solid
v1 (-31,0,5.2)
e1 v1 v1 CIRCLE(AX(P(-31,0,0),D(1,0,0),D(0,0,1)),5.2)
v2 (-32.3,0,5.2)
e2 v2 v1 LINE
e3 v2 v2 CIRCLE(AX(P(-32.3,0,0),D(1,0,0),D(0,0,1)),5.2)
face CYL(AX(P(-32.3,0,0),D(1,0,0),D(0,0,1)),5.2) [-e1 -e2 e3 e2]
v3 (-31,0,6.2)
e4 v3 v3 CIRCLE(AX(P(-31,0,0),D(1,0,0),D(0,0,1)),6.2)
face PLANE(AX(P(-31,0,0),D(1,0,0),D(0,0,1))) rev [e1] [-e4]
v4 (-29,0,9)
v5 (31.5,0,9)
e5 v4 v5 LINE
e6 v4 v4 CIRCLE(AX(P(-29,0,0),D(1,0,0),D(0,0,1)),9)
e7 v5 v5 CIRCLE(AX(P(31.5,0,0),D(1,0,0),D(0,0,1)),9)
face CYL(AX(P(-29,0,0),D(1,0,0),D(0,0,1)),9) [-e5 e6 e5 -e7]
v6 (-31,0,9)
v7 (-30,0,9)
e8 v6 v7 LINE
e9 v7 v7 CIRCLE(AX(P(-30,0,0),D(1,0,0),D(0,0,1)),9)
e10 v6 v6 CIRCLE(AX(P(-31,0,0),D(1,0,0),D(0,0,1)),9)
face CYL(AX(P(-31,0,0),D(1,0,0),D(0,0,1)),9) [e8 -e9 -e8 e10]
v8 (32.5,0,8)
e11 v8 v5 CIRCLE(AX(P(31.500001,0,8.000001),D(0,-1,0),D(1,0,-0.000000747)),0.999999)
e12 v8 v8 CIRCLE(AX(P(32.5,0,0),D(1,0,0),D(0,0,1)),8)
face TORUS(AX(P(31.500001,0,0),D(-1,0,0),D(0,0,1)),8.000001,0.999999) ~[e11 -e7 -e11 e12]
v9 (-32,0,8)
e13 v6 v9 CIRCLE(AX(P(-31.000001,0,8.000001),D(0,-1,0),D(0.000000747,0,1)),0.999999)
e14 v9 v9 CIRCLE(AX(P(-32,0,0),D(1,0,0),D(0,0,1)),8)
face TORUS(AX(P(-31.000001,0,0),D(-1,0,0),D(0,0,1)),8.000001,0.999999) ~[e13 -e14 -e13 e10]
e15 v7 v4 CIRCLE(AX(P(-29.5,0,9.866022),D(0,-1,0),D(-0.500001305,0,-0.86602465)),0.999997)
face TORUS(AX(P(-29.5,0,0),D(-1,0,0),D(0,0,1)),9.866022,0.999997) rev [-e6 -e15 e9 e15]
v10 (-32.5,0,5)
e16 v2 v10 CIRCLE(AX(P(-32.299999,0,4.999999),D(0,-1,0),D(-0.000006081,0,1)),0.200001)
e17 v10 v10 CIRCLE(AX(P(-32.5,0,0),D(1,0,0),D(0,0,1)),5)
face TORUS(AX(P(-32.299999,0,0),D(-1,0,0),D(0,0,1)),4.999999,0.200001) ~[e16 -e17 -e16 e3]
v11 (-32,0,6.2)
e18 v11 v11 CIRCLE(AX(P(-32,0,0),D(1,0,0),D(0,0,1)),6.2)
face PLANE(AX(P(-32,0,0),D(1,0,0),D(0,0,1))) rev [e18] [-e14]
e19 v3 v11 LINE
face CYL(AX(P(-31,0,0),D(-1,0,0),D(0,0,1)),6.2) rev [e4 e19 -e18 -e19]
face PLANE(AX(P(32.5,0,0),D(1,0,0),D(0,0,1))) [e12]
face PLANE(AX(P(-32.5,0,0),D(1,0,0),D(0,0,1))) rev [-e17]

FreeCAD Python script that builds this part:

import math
import FreeCAD as App
import Part
import Sketcher
from FreeCAD import Vector

doc = App.newDocument("Part")
body = doc.addObject("PartDesign::Body", "Body")

# Sketch on XZ plane
sketch1 = body.newObject("Sketcher::SketchObject", "Sketch")
sketch1.AttachmentSupport = (doc.getObject("XZ_Plane"), [""])
sketch1.MapMode = "FlatFace"
sketch1.addGeometry(Part.LineSegment(Vector(-32.5, 5, 0), Vector(-32.5, 0, 0)), False)
sketch1.addGeometry(Part.LineSegment(Vector(-32.5, 0, 0), Vector(32.5, 0, 0)), False)
sketch1.addGeometry(Part.LineSegment(Vector(32.5, 0, 0), Vector(32.5, 8, 0)), False)
sketch1.addGeometry(Part.ArcOfCircle(Part.Circle(Vector(31.5, 8, 0), Vector(0, 0, 1), 1), math.radians(0), math.radians(90)), False)
sketch1.addGeometry(Part.LineSegment(Vector(31.5, 9, 0), Vector(-29, 9, 0)), False)
sketch1.addGeometry(Part.ArcOfCircle(Part.Circle(Vector(-29.5, 9.87, 0), Vector(0, 0, 1), 1), math.radians(-120), math.radians(-60)), False)
sketch1.addGeometry(Part.LineSegment(Vector(-30, 9, 0), Vector(-31, 9, 0)), False)
sketch1.addGeometry(Part.ArcOfCircle(Part.Circle(Vector(-31, 8, 0), Vector(0, 0, 1), 1), math.radians(90), math.radians(180)), False)
sketch1.addGeometry(Part.LineSegment(Vector(-32, 8, 0), Vector(-32, 6.2, 0)), False)
sketch1.addGeometry(Part.LineSegment(Vector(-32, 6.2, 0), Vector(-31, 6.2, 0)), False)
sketch1.addGeometry(Part.LineSegment(Vector(-31, 6.2, 0), Vector(-31, 5.2, 0)), False)
sketch1.addGeometry(Part.LineSegment(Vector(-31, 5.2, 0), Vector(-32.3, 5.2, 0)), False)
sketch1.addGeometry(Part.ArcOfCircle(Part.Circle(Vector(-32.3, 5, 0), Vector(0, 0, 1), 0.2), math.radians(90), math.radians(180)), False)
sketch1.addConstraint(Sketcher.Constraint("Coincident", 0, 2, 1, 1))
sketch1.addConstraint(Sketcher.Constraint("Coincident", 1, 2, 2, 1))
sketch1.addConstraint(Sketcher.Constraint("Tangent", 2, 2, 3, 1))
sketch1.addConstraint(Sketcher.Constraint("Tangent", 3, 2, 4, 1))
sketch1.addConstraint(Sketcher.Constraint("Coincident", 4, 2, 5, 2))
sketch1.addConstraint(Sketcher.Constraint("Coincident", 5, 1, 6, 1))
sketch1.addConstraint(Sketcher.Constraint("Tangent", 6, 2, 7, 1))
sketch1.addConstraint(Sketcher.Constraint("Tangent", 7, 2, 8, 1))
sketch1.addConstraint(Sketcher.Constraint("Coincident", 8, 2, 9, 1))
sketch1.addConstraint(Sketcher.Constraint("Coincident", 9, 2, 10, 1))
sketch1.addConstraint(Sketcher.Constraint("Coincident", 10, 2, 11, 1))
sketch1.addConstraint(Sketcher.Constraint("Coincident", 11, 2, 12, 1))
sketch1.addConstraint(Sketcher.Constraint("Coincident", 12, 2, 0, 1))
sketch1.addConstraint(Sketcher.Constraint("Vertical", 0))
sketch1.addConstraint(Sketcher.Constraint("Horizontal", 1))
sketch1.addConstraint(Sketcher.Constraint("Vertical", 2))
sketch1.addConstraint(Sketcher.Constraint("Horizontal", 4))
sketch1.addConstraint(Sketcher.Constraint("Horizontal", 6))
sketch1.addConstraint(Sketcher.Constraint("Vertical", 8))
sketch1.addConstraint(Sketcher.Constraint("Horizontal", 9))
sketch1.addConstraint(Sketcher.Constraint("Vertical", 10))
sketch1.addConstraint(Sketcher.Constraint("Horizontal", 11))
sketch1.addConstraint(Sketcher.Constraint("Equal", 3, 5))
sketch1.addConstraint(Sketcher.Constraint("Equal", 5, 7))
sketch1.addConstraint(Sketcher.Constraint("Symmetric", 0, 2, 1, 2, -1, 1))
sketch1.addConstraint(Sketcher.Constraint("Horizontal", 3, 3, 7, 3))
sketch1.addConstraint(Sketcher.Constraint("Vertical", 6, 2, 9, 2))
sketch1.addConstraint(Sketcher.Constraint("Vertical", 12, 3, 11, 2))
sketch1.addConstraint(Sketcher.Constraint("Equal", 6, 9))
sketch1.addConstraint(Sketcher.Constraint("Equal", 9, 10))
sketch1.addConstraint(Sketcher.Constraint("Radius", 3, 0.999999))
sketch1.addConstraint(Sketcher.Constraint("Radius", 12, 0.200001))
sketch1.addConstraint(Sketcher.Constraint("DistanceX", 1, 1, 1, 2, 65.0))
sketch1.addConstraint(Sketcher.Constraint("DistanceY", 0, 2, 0, 1, 5.0))
sketch1.addConstraint(Sketcher.Constraint("DistanceY", 2, 1, 2, 2, 8.0))
sketch1.addConstraint(Sketcher.Constraint("DistanceX", 4, 2, 4, 1, 60.5))
sketch1.addConstraint(Sketcher.Constraint("DistanceX", 11, 2, 11, 1, 1.3))
sketch1.addConstraint(Sketcher.Constraint("DistanceY", 8, 2, 8, 1, 1.8))
revolution = body.newObject("PartDesign::Revolution", "Revolution")
revolution.Profile = sketch1
revolution.ReferenceAxis = (sketch1, ["H_Axis"])
revolution.Angle = 360

doc.recompute()
